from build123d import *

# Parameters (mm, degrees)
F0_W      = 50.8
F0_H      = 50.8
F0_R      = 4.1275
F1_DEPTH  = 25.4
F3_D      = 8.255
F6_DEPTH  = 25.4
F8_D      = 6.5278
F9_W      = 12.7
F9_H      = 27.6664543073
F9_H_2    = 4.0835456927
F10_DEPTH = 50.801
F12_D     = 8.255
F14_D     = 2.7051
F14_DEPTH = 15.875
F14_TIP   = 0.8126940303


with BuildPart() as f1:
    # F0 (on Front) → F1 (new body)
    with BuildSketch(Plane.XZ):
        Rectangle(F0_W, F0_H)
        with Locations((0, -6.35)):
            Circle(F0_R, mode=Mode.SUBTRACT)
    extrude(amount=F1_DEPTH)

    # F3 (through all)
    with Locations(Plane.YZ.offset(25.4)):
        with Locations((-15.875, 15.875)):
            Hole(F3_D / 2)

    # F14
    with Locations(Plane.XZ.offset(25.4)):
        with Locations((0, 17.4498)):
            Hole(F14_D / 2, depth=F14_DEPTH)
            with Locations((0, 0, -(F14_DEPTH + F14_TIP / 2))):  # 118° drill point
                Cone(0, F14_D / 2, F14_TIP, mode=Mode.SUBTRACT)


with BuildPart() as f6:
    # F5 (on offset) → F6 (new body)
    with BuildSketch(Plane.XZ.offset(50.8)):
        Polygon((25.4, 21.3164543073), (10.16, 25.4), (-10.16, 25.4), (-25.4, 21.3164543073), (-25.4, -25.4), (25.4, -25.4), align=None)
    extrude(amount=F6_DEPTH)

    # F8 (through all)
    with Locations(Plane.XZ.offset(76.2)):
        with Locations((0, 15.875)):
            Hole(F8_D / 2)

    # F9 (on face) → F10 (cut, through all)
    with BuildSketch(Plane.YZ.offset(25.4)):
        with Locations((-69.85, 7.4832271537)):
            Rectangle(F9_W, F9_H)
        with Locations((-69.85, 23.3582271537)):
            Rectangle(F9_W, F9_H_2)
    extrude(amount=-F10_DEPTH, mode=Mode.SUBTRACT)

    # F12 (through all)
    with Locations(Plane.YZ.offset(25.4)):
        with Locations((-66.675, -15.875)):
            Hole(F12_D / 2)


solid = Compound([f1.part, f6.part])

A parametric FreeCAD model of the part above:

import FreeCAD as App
import Part
import Sketcher
Q = App.Units.Quantity

doc = App.newDocument("Part")
params = doc.addObject("Spreadsheet::Sheet", "Params")
for row, (alias, value) in enumerate([
    ("sketch1_width", "2 in"),
    ("sketch1_diameter", "0.325 in"),
    ("pad1_length", "1 in"),
    ("sketch2_diameter", "0.325 in"),
    ("hole_diameter", "0.325 in"),
    ("hole2_diameter", "0.1065 in"),
    ("hole2_depth", "0.625 in"),
    ("sketch4_width", "2 in"),
    ("sketch4_width2", "0.8 in"),
    ("pad2_length", "1 in"),
    ("sketch5_diameter", "0.257 in"),
    ("hole3_diameter", "0.257 in"),
    ("sketch6_width", "0.5 in"),
    ("sketch6_height", "1.25 in"),
    ("sketch7_diameter", "0.325 in"),
    ("hole4_diameter", "0.325 in"),
], start=1):
    params.set(f"A{row}", alias)
    params.set(f"B{row}", "=" + value)
    params.setAlias(f"B{row}", alias)

body = doc.addObject("PartDesign::Body", "Body")

sketch1 = body.newObject("Sketcher::SketchObject", "Sketch")
sketch1.AttachmentSupport = (doc.getObject("XZ_Plane"), [""])
sketch1.MapMode = "FlatFace"
sketch1.addGeometry([
    Part.LineSegment(App.Vector(-25.4, 25.4, 0), App.Vector(-25.4, -25.4, 0)),
    Part.LineSegment(App.Vector(-25.4, -25.4, 0), App.Vector(25.4, -25.4, 0)),
    Part.LineSegment(App.Vector(25.4, -25.4, 0), App.Vector(25.4, 25.4, 0)),
    Part.LineSegment(App.Vector(25.4, 25.4, 0), App.Vector(-25.4, 25.4, 0)),
    Part.Circle(App.Vector(0, -6.3, 0), App.Vector(0, 0, 1), 4.1),
], False)
sketch1.addConstraint([
    Sketcher.Constraint("Coincident", 0, 2, 1, 1),
    Sketcher.Constraint("Coincident", 1, 2, 2, 1),
    Sketcher.Constraint("Coincident", 2, 2, 3, 1),
    Sketcher.Constraint("Coincident", 3, 2, 0, 1),
    Sketcher.Constraint("Vertical", 0),
    Sketcher.Constraint("Horizontal", 1),
    Sketcher.Constraint("Vertical", 2),
    Sketcher.Constraint("Horizontal", 3),
    Sketcher.Constraint("Symmetric", 0, 2, 2, 2, -1, 1),
    Sketcher.Constraint("PointOnObject", 4, 3, -2),
    Sketcher.Constraint("Equal", 3, 0),
    Sketcher.Constraint("DistanceX", 1, 1, 1, 2, Q("2 in")),
    Sketcher.Constraint("Diameter", 4, Q("0.325 in")),
    Sketcher.Constraint("DistanceY", 4, 3, -1, 1, Q("0.25 in")),
])
sketch1.setExpression("Constraints[11]", "Params.sketch1_width")
sketch1.setExpression("Constraints[12]", "Params.sketch1_diameter")
pad1 = body.newObject("PartDesign::Pad", "Pad")
pad1.Profile = sketch1
pad1.setExpression("Length", "Params.pad1_length")

sketch2 = body.newObject("Sketcher::SketchObject", "Sketch001")
sketch2.AttachmentSupport = (doc.getObject("YZ_Plane"), [""])
sketch2.MapMode = "FlatFace"
sketch2.AttachmentOffset = App.Placement(App.Vector(0, 0, 1 * 25.4), App.Rotation())
sketch2.addGeometry(Part.Circle(App.Vector(-15.9, 15.9, 0), App.Vector(0, 0, 1), 4.1), False)
sketch2.addConstraint([
    Sketcher.Constraint("Diameter", 0, Q("0.325 in")),
    Sketcher.Constraint("DistanceX", 0, 3, -1, 1, Q("0.625 in")),
    Sketcher.Constraint("DistanceY", -1, 1, 0, 3, Q("0.625 in")),
])
sketch2.setExpression("Constraints[0]", "Params.sketch2_diameter")
doc.recompute()
hole = body.newObject("PartDesign::Hole", "Hole")
hole.Profile = sketch2
hole.ThreadType = "None"
hole.setExpression("Diameter", "Params.hole_diameter")
hole.DepthType = "ThroughAll"

sketch3 = body.newObject("Sketcher::SketchObject", "Sketch002")
sketch3.AttachmentSupport = (doc.getObject("XZ_Plane"), [""])
sketch3.MapMode = "FlatFace"
sketch3.AttachmentOffset = App.Placement(App.Vector(0, 0, 1 * 25.4), App.Rotation())
sketch3.addGeometry(Part.Circle(App.Vector(0, 17.4, 0), App.Vector(0, 0, 1), 1.4), False)
sketch3.addConstraint([
    Sketcher.Constraint("PointOnObject", 0, 3, -2),
    Sketcher.Constraint("Diameter", 0, Q("0.1065 in")),
    Sketcher.Constraint("DistanceY", -1, 1, 0, 3, Q("0.687 in")),
])
doc.recompute()
hole2 = body.newObject("PartDesign::Hole", "Hole001")
hole2.Profile = sketch3
hole2.ThreadType = "None"
hole2.setExpression("Diameter", "Params.hole2_diameter")
hole2.DepthType = "Dimension"
hole2.setExpression("Depth", "Params.hole2_depth")
hole2.DrillPoint = "Angled"
hole2.DrillPointAngle = 118
body2 = doc.addObject("PartDesign::Body", "Body001")

sketch4 = body2.newObject("Sketcher::SketchObject", "Sketch003")
sketch4.AttachmentSupport = (doc.getObject("XZ_Plane001"), [""])
sketch4.MapMode = "FlatFace"
sketch4.AttachmentOffset = App.Placement(App.Vector(0, 0, 2 * 25.4), App.Rotation())
sketch4.addGeometry([
    Part.LineSegment(App.Vector(25, 21, 0), App.Vector(10, 25, 0)),
    Part.LineSegment(App.Vector(10, 25, 0), App.Vector(-10, 25, 0)),
    Part.LineSegment(App.Vector(-10, 25, 0), App.Vector(-25, 21, 0)),
    Part.LineSegment(App.Vector(-25, 21, 0), App.Vector(-25, -25, 0)),
    Part.LineSegment(App.Vector(-25, -25, 0), App.Vector(25, -25, 0)),
    Part.LineSegment(App.Vector(25, -25, 0), App.Vector(25, 21, 0)),
], False)
sketch4.addConstraint([
    Sketcher.Constraint("Coincident", 0, 2, 1, 1),
    Sketcher.Constraint("Coincident", 1, 2, 2, 1),
    Sketcher.Constraint("Coincident", 2, 2, 3, 1),
    Sketcher.Constraint("Coincident", 3, 2, 4, 1),
    Sketcher.Constraint("Coincident", 4, 2, 5, 1),
    Sketcher.Constraint("Coincident", 5, 2, 0, 1),
    Sketcher.Constraint("Horizontal", 1),
    Sketcher.Constraint("Vertical", 3),
    Sketcher.Constraint("Horizontal", 4),
    Sketcher.Constraint("Vertical", 5),
    Sketcher.Constraint("Symmetric", 2, 2, 5, 2, -2),
    Sketcher.Constraint("Equal", 0, 2),
    Sketcher.Constraint("DistanceX", 4, 1, 4, 2, Q("2 in")),
    Sketcher.Constraint("DistanceX", 1, 2, 1, 1, Q("0.8 in")),
    Sketcher.Constraint("DistanceY", -1, 1, 0, 2, Q("1 in")),
    Sketcher.Constraint("DistanceY", 3, 2, -1, 1, Q("1 in")),
    Sketcher.Constraint("Angle", 0, Q("165 deg")),
])
sketch4.setExpression("Constraints[12]", "Params.sketch4_width")
sketch4.setExpression("Constraints[13]", "Params.sketch4_width2")
pad2 = body2.newObject("PartDesign::Pad", "Pad001")
pad2.Profile = sketch4
pad2.setExpression("Length", "Params.pad2_length")

sketch5 = body2.newObject("Sketcher::SketchObject", "Sketch004")
sketch5.AttachmentSupport = (doc.getObject("XZ_Plane001"), [""])
sketch5.MapMode = "FlatFace"
sketch5.AttachmentOffset = App.Placement(App.Vector(0, 0, 3 * 25.4), App.Rotation())
sketch5.addGeometry(Part.Circle(App.Vector(0, 15.9, 0), App.Vector(0, 0, 1), 3.3), False)
sketch5.addConstraint([
    Sketcher.Constraint("PointOnObject", 0, 3, -2),
    Sketcher.Constraint("Diameter", 0, Q("0.257 in")),
    Sketcher.Constraint("DistanceY", -1, 1, 0, 3, Q("0.625 in")),
])
sketch5.setExpression("Constraints[1]", "Params.sketch5_diameter")
doc.recompute()
hole3 = body2.newObject("PartDesign::Hole", "Hole002")
hole3.Profile = sketch5
hole3.ThreadType = "None"
hole3.setExpression("Diameter", "Params.hole3_diameter")
hole3.DepthType = "ThroughAll"

sketch6 = body2.newObject("Sketcher::SketchObject", "Sketch005")
sketch6.AttachmentSupport = (doc.getObject("YZ_Plane001"), [""])
sketch6.MapMode = "FlatFace"
sketch6.AttachmentOffset = App.Placement(App.Vector(0, 0, 1 * 25.4), App.Rotation())
sketch6.addGeometry([
    Part.LineSegment(App.Vector(-76, -6, 0), App.Vector(-64, -6, 0)),
    Part.LineSegment(App.Vector(-64, -6, 0), App.Vector(-64, 25, 0)),
    Part.LineSegment(App.Vector(-64, 25, 0), App.Vector(-76, 25, 0)),
    Part.LineSegment(App.Vector(-76, 25, 0), App.Vector(-76, -6, 0)),
], False)
sketch6.addConstraint([
    Sketcher.Constraint("Coincident", 0, 2, 1, 1),
    Sketcher.Constraint("Coincident", 1, 2, 2, 1),
    Sketcher.Constraint("Coincident", 2, 2, 3, 1),
    Sketcher.Constraint("Coincident", 3, 2, 0, 1),
    Sketcher.Constraint("Horizontal", 0),
    Sketcher.Constraint("Vertical", 1),
    Sketcher.Constraint("Horizontal", 2),
    Sketcher.Constraint("Vertical", 3),
    Sketcher.Constraint("DistanceX", 0, 1, 0, 2, Q("0.5 in")),
    Sketcher.Constraint("DistanceY", -1, 1, 1, 2, Q("1 in")),
    Sketcher.Constraint("DistanceX", 2, 2, -1, 1, Q("3 in")),
    Sketcher.Constraint("DistanceY", 1, 1, 1, 2, Q("1.25 in")),
])
sketch6.setExpression("Constraints[8]", "Params.sketch6_width")
sketch6.setExpression("Constraints[11]", "Params.sketch6_height")
pocket1 = body2.newObject("PartDesign::Pocket", "Pocket")
pocket1.Profile = sketch6
pocket1.Type = "ThroughAll"

sketch7 = body2.newObject("Sketcher::SketchObject", "Sketch006")
sketch7.AttachmentSupport = (doc.getObject("YZ_Plane001"), [""])
sketch7.MapMode = "FlatFace"
sketch7.AttachmentOffset = App.Placement(App.Vector(0, 0, 1 * 25.4), App.Rotation())
sketch7.addGeometry(Part.Circle(App.Vector(-66.7, -15.9, 0), App.Vector(0, 0, 1), 4.1), False)
sketch7.addConstraint([
    Sketcher.Constraint("Diameter", 0, Q("0.325 in")),
    Sketcher.Constraint("DistanceX", 0, 3, -1, 1, Q("2.625 in")),
    Sketcher.Constraint("DistanceY", 0, 3, -1, 1, Q("0.625 in")),
])
sketch7.setExpression("Constraints[0]", "Params.sketch7_diameter")
doc.recompute()
hole4 = body2.newObject("PartDesign::Hole", "Hole003")
hole4.Profile = sketch7
hole4.ThreadType = "None"
hole4.setExpression("Diameter", "Params.hole4_diameter")
hole4.DepthType = "ThroughAll"

doc.recompute()
